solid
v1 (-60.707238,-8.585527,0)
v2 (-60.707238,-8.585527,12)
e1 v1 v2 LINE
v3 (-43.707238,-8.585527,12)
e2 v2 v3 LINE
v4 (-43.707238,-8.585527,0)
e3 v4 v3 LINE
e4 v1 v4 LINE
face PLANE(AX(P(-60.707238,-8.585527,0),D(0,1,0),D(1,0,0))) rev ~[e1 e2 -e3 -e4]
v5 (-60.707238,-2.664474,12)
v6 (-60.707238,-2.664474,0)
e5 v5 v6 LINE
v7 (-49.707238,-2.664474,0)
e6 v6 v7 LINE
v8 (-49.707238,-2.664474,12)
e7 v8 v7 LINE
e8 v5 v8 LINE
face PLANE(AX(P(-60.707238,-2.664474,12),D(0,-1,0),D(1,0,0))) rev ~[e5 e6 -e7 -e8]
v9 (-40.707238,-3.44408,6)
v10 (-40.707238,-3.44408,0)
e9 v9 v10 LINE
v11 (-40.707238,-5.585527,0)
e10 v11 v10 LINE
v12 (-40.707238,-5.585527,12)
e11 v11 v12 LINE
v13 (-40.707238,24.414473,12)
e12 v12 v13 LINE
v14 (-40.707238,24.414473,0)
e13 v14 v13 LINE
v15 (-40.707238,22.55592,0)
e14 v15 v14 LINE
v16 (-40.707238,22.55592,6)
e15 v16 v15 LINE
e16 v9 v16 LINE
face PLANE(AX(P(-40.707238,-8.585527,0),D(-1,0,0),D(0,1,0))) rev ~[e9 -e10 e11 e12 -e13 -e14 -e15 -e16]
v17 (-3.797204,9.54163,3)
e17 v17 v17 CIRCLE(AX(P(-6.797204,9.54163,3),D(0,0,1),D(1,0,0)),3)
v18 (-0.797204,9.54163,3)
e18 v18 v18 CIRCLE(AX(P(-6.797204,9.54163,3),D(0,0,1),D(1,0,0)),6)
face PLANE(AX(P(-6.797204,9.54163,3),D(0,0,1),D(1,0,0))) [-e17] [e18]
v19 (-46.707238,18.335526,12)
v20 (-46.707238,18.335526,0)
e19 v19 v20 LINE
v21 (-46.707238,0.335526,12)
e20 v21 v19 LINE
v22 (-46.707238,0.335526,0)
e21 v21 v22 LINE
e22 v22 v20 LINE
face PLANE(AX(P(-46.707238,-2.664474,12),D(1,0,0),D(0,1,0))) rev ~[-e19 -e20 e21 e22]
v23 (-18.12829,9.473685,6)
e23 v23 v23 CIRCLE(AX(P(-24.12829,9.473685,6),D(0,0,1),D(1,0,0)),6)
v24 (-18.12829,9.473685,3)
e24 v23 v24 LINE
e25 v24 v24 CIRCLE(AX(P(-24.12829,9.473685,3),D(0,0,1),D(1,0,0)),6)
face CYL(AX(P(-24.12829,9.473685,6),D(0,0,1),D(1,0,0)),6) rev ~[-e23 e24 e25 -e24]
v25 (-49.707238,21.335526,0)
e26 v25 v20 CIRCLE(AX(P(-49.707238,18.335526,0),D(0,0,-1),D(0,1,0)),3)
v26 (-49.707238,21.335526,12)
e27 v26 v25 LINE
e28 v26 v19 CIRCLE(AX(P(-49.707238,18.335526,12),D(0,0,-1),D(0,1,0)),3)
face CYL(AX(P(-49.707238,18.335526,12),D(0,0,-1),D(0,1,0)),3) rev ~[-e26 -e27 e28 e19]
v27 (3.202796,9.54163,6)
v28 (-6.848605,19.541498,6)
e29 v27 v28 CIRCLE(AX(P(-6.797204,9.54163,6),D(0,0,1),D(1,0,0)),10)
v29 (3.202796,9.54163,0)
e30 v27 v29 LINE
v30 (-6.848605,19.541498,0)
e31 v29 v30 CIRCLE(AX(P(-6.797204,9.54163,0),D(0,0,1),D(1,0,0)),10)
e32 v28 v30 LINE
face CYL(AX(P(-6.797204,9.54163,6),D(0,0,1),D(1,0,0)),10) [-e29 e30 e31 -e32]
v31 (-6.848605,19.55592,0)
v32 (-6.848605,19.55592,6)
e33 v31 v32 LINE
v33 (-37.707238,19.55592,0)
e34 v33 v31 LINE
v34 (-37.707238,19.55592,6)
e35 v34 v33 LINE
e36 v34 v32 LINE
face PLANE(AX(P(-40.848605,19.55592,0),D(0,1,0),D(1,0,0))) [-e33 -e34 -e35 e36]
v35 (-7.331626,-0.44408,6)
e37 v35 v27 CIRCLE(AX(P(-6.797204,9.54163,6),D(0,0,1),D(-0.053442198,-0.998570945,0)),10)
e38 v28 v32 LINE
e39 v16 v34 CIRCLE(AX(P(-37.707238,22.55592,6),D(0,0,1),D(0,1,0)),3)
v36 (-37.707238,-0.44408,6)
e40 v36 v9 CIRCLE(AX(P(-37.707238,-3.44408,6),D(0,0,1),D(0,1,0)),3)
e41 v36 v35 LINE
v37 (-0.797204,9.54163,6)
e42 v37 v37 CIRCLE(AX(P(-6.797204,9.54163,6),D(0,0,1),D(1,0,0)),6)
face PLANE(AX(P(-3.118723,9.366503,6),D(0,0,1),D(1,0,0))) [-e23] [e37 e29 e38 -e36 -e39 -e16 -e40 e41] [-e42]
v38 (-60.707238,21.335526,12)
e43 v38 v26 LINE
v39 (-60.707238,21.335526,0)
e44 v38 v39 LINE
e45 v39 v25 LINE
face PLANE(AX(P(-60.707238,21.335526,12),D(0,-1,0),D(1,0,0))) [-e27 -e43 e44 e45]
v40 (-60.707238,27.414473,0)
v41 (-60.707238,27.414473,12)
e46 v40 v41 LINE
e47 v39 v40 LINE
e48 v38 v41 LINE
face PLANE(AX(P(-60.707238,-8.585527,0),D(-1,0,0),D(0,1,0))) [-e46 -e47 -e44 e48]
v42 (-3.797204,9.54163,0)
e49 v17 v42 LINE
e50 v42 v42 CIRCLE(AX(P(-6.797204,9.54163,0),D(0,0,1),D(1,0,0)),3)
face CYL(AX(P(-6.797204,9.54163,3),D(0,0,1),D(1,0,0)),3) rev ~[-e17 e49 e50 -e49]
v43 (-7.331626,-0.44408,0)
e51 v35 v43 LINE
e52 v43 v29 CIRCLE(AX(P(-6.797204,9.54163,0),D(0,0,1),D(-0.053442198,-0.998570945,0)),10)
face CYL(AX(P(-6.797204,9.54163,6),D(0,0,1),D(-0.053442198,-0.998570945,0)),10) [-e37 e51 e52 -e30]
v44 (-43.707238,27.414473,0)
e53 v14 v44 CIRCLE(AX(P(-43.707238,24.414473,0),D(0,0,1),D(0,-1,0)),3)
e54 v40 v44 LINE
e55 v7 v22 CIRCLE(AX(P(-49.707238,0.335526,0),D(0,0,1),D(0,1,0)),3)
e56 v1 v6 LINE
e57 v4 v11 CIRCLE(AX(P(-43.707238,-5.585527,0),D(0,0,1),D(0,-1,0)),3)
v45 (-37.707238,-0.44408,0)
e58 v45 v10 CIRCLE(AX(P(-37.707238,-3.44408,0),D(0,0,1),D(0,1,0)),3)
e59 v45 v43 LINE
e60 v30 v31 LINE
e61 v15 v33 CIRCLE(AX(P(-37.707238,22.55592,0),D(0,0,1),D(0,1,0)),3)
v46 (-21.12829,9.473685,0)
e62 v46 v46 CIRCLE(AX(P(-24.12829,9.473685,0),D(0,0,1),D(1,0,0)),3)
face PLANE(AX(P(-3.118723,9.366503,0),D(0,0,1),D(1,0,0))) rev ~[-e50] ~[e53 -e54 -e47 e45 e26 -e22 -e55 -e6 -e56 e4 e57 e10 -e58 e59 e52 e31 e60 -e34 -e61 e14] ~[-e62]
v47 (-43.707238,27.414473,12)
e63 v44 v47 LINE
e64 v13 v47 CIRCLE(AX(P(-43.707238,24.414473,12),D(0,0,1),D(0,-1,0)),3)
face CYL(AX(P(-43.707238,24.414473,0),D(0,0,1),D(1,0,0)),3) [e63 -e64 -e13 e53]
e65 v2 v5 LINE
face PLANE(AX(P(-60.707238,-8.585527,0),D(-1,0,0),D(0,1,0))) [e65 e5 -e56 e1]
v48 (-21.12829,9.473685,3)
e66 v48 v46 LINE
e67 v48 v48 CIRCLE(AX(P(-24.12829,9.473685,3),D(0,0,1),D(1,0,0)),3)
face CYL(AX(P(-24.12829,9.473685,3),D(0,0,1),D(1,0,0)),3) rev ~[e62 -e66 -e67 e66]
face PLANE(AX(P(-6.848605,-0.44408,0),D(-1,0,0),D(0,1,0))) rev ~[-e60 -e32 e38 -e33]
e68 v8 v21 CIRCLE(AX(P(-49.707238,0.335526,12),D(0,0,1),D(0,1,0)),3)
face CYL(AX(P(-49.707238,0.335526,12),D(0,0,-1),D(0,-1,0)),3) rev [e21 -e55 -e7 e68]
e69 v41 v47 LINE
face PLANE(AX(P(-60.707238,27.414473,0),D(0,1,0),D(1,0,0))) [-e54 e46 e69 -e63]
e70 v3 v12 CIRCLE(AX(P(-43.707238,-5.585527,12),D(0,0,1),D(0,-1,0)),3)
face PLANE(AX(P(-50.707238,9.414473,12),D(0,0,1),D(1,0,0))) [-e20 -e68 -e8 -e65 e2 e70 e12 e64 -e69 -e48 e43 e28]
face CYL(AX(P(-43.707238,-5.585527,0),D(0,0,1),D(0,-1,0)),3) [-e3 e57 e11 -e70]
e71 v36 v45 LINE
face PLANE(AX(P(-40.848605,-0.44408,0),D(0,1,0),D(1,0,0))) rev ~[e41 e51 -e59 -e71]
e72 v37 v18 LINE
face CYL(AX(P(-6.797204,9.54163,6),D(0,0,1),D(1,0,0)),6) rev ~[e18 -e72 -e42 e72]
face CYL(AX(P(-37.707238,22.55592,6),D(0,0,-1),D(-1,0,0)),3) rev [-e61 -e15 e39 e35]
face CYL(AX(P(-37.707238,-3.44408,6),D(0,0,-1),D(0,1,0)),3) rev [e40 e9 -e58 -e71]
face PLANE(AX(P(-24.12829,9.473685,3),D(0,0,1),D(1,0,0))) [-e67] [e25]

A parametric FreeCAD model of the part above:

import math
import FreeCAD as App
import Part
import Sketcher
from FreeCAD import Vector
Q = App.Units.Quantity


def edges_at(feature, points):
    """Names of the edges that pass closest to the given points."""
    edges = feature.Shape.Edges
    near = lambda p: min(range(len(edges)), key=lambda i: edges[i].distToShape(Part.Vertex(*p))[0])
    return sorted({f"Edge{near(p) + 1}" for p in points})

doc = App.newDocument("Part")
body = doc.addObject("PartDesign::Body", "Body")

# Sketch on XY plane
sketch1 = body.newObject("Sketcher::SketchObject", "Sketch")
sketch1.AttachmentSupport = (doc.getObject("XY_Plane"), [""])
sketch1.MapMode = "FlatFace"
sketch1.addGeometry([
    Part.LineSegment(Vector(-61, 27, 0), Vector(-61, -9, 0)),
    Part.LineSegment(Vector(-61, -9, 0), Vector(-41, -9, 0)),
    Part.LineSegment(Vector(-41, -9, 0), Vector(-41, 27, 0)),
    Part.LineSegment(Vector(-41, 27, 0), Vector(-61, 27, 0)),
], False)
sketch1.addConstraint([
    Sketcher.Constraint("Coincident", 0, 2, 1, 1),
    Sketcher.Constraint("Coincident", 1, 2, 2, 1),
    Sketcher.Constraint("Coincident", 2, 2, 3, 1),
    Sketcher.Constraint("Coincident", 3, 2, 0, 1),
    Sketcher.Constraint("Vertical", 0),
    Sketcher.Constraint("Horizontal", 1),
    Sketcher.Constraint("Vertical", 2),
    Sketcher.Constraint("Horizontal", 3),
    Sketcher.Constraint("DistanceX", 1, 1, 1, 2, Q("20 mm")),
    Sketcher.Constraint("DistanceY", 0, 2, 0, 1, Q("36 mm")),
    Sketcher.Constraint("DistanceX", 0, 2, -1, 1, Q("60.707238 mm")),
    Sketcher.Constraint("DistanceY", 0, 2, -1, 1, Q("8.585527 mm")),
])
pad1 = body.newObject("PartDesign::Pad", "Pad")
pad1.Profile = sketch1
pad1.Length = 12

# Sketch on XY plane
sketch2 = body.newObject("Sketcher::SketchObject", "Sketch001")
sketch2.AttachmentSupport = (doc.getObject("XY_Plane"), [""])
sketch2.MapMode = "FlatFace"
sketch2.AttachmentOffset = App.Placement(Vector(0, 0, 12), App.Rotation())
sketch2.addGeometry([
    Part.LineSegment(Vector(-61, 21, 0), Vector(-61, -3, 0)),
    Part.LineSegment(Vector(-61, -3, 0), Vector(-47, -3, 0)),
    Part.LineSegment(Vector(-47, -3, 0), Vector(-47, 21, 0)),
    Part.LineSegment(Vector(-47, 21, 0), Vector(-61, 21, 0)),
], False)
sketch2.addConstraint([
    Sketcher.Constraint("Coincident", 0, 2, 1, 1),
    Sketcher.Constraint("Coincident", 1, 2, 2, 1),
    Sketcher.Constraint("Coincident", 2, 2, 3, 1),
    Sketcher.Constraint("Coincident", 3, 2, 0, 1),
    Sketcher.Constraint("Vertical", 0),
    Sketcher.Constraint("Horizontal", 1),
    Sketcher.Constraint("Vertical", 2),
    Sketcher.Constraint("Horizontal", 3),
    Sketcher.Constraint("DistanceX", 1, 1, 1, 2, Q("14 mm")),
    Sketcher.Constraint("DistanceY", 0, 2, 0, 1, Q("24 mm")),
    Sketcher.Constraint("DistanceX", 0, 2, -1, 1, Q("60.707238 mm")),
    Sketcher.Constraint("DistanceY", 0, 2, -1, 1, Q("2.664474 mm")),
])
pocket1 = body.newObject("PartDesign::Pocket", "Pocket")
pocket1.Profile = sketch2
pocket1.Length = 25
doc.recompute()

fillet = body.newObject("PartDesign::Fillet", "Fillet")
fillet.Base = (pocket1, edges_at(pocket1, [(-40.707, -8.586, 6)]))
fillet.Radius = 3
doc.recompute()

fillet2 = body.newObject("PartDesign::Fillet", "Fillet001")
fillet2.Base = (fillet, edges_at(fillet, [(-40.707, 27.414, 6), (-46.707, -2.664, 6), (-46.707, 21.336, 6)]))
fillet2.Radius = 3

# Sketch on XY plane
sketch3 = body.newObject("Sketcher::SketchObject", "Sketch002")
sketch3.AttachmentSupport = (doc.getObject("XY_Plane"), [""])
sketch3.MapMode = "FlatFace"
sketch3.addGeometry([
    Part.LineSegment(Vector(-41, 20, 0), Vector(-41, 0, 0)),
    Part.LineSegment(Vector(-41, 0, 0), Vector(-7, 0, 0)),
    Part.LineSegment(Vector(-7, 0, 0), Vector(-7, 20, 0)),
    Part.LineSegment(Vector(-7, 20, 0), Vector(-41, 20, 0)),
], False)
sketch3.addConstraint([
    Sketcher.Constraint("Coincident", 0, 2, 1, 1),
    Sketcher.Constraint("Coincident", 1, 2, 2, 1),
    Sketcher.Constraint("Coincident", 2, 2, 3, 1),
    Sketcher.Constraint("Coincident", 3, 2, 0, 1),
    Sketcher.Constraint("Vertical", 0),
    Sketcher.Constraint("Horizontal", 1),
    Sketcher.Constraint("Vertical", 2),
    Sketcher.Constraint("Horizontal", 3),
    Sketcher.Constraint("DistanceX", 1, 1, 1, 2, Q("34 mm")),
    Sketcher.Constraint("DistanceY", 0, 2, 0, 1, Q("20 mm")),
    Sketcher.Constraint("DistanceY", 0, 2, -1, 1, Q("0.44408 mm")),
    Sketcher.Constraint("DistanceX", 0, 2, -1, 1, Q("40.848605 mm")),
])
pad2 = body.newObject("PartDesign::Pad", "Pad001")
pad2.Profile = sketch3
pad2.Length = 6
doc.recompute()

fillet3 = body.newObject("PartDesign::Fillet", "Fillet002")
fillet3.Base = (pad2, edges_at(pad2, [(-40.707, 19.556, 3)]))
fillet3.Radius = 3
doc.recompute()

fillet4 = body.newObject("PartDesign::Fillet", "Fillet003")
fillet4.Base = (fillet3, edges_at(fillet3, [(-40.707, -0.444, 3)]))
fillet4.Radius = 3

# Sketch on XY plane
sketch4 = body.newObject("Sketcher::SketchObject", "Sketch003")
sketch4.AttachmentSupport = (doc.getObject("XY_Plane"), [""])
sketch4.MapMode = "FlatFace"
sketch4.AttachmentOffset = App.Placement(Vector(0, 0, 6), App.Rotation())
sketch4.addGeometry([
    Part.ArcOfCircle(Part.Circle(Vector(-6.8, 9.54, 0), Vector(0, 0, 1), 10), math.radians(-93), math.radians(0)),
    Part.ArcOfCircle(Part.Circle(Vector(-6.8, 9.54, 0), Vector(0, 0, 1), 10), math.radians(0), math.radians(90)),
    Part.LineSegment(Vector(-6.85, 19.54, 0), Vector(-6.85, -0.44, 0)),
    Part.LineSegment(Vector(-6.85, -0.44, 0), Vector(-7.33, -0.44, 0)),
], False)
sketch4.addConstraint([
    Sketcher.Constraint("Tangent", 0, 2, 1, 1),
    Sketcher.Constraint("Coincident", 1, 2, 2, 1),
    Sketcher.Constraint("Coincident", 2, 2, 3, 1),
    Sketcher.Constraint("Coincident", 3, 2, 0, 1),
    Sketcher.Constraint("Vertical", 2),
    Sketcher.Constraint("Horizontal", 3),
    Sketcher.Constraint("Equal", 0, 1),
    Sketcher.Constraint("Horizontal", 1, 3, 0, 2),
    Sketcher.Constraint("Radius", 0, Q("10 mm")),
    Sketcher.Constraint("DistanceX", 3, 2, 3, 1, Q("0.48302 mm")),
    Sketcher.Constraint("DistanceX", 1, 2, 0, 3, Q("0.051402 mm")),
    Sketcher.Constraint("DistanceY", -1, 1, 0, 3, Q("9.54163 mm")),
    Sketcher.Constraint("DistanceX", 0, 3, -1, 1, Q("6.797204 mm")),
])
pad3 = body.newObject("PartDesign::Pad", "Pad002")
pad3.Profile = sketch4
pad3.Length = 6
pad3.Reversed = True

# Sketch on XY plane
sketch5 = body.newObject("Sketcher::SketchObject", "Sketch004")
sketch5.AttachmentSupport = (doc.getObject("XY_Plane"), [""])
sketch5.MapMode = "FlatFace"
sketch5.AttachmentOffset = App.Placement(Vector(0, 0, 6), App.Rotation())
sketch5.addGeometry(Part.Circle(Vector(-7, 10, 0), Vector(0, 0, 1), 6), False)
sketch5.addConstraint([
    Sketcher.Constraint("Diameter", 0, Q("12 mm")),
    Sketcher.Constraint("DistanceY", -1, 1, 0, 3, Q("9.54163 mm")),
    Sketcher.Constraint("DistanceX", 0, 3, -1, 1, Q("6.797204 mm")),
])
pocket2 = body.newObject("PartDesign::Pocket", "Pocket001")
pocket2.Profile = sketch5
pocket2.Length = 3

# Sketch on XY plane
sketch6 = body.newObject("Sketcher::SketchObject", "Sketch005")
sketch6.AttachmentSupport = (doc.getObject("XY_Plane"), [""])
sketch6.MapMode = "FlatFace"
sketch6.AttachmentOffset = App.Placement(Vector(0, 0, 6), App.Rotation())
sketch6.addGeometry(Part.Circle(Vector(-24, 9, 0), Vector(0, 0, 1), 6), False)
sketch6.addConstraint([
    Sketcher.Constraint("Diameter", 0, Q("12 mm")),
    Sketcher.Constraint("DistanceX", 0, 3, -1, 1, Q("24.12829 mm")),
    Sketcher.Constraint("DistanceY", -1, 1, 0, 3, Q("9.473685 mm")),
])
pocket3 = body.newObject("PartDesign::Pocket", "Pocket002")
pocket3.Profile = sketch6
pocket3.Length = 3

# Sketch on XY plane
sketch7 = body.newObject("Sketcher::SketchObject", "Sketch006")
sketch7.AttachmentSupport = (doc.getObject("XY_Plane"), [""])
sketch7.MapMode = "FlatFace"
sketch7.AttachmentOffset = App.Placement(Vector(0, 0, 3), App.Rotation())
sketch7.addGeometry(Part.Circle(Vector(-24.1, 9.5, 0), Vector(0, 0, 1), 3), False)
sketch7.addConstraint([
    Sketcher.Constraint("Diameter", 0, Q("6 mm")),
    Sketcher.Constraint("DistanceX", 0, 3, -1, 1, Q("24.12829 mm")),
    Sketcher.Constraint("DistanceY", -1, 1, 0, 3, Q("9.473685 mm")),
])
pocket4 = body.newObject("PartDesign::Pocket", "Pocket003")
pocket4.Profile = sketch7
pocket4.Length = 3

# Sketch on XY plane
sketch8 = body.newObject("Sketcher::SketchObject", "Sketch007")
sketch8.AttachmentSupport = (doc.getObject("XY_Plane"), [""])
sketch8.MapMode = "FlatFace"
sketch8.AttachmentOffset = App.Placement(Vector(0, 0, 3), App.Rotation())
sketch8.addGeometry(Part.Circle(Vector(-6.8, 9.5, 0), Vector(0, 0, 1), 3), False)
sketch8.addConstraint([
    Sketcher.Constraint("Diameter", 0, Q("6 mm")),
    Sketcher.Constraint("DistanceY", -1, 1, 0, 3, Q("9.54163 mm")),
    Sketcher.Constraint("DistanceX", 0, 3, -1, 1, Q("6.797204 mm")),
])
pocket5 = body.newObject("PartDesign::Pocket", "Pocket004")
pocket5.Profile = sketch8
pocket5.Length = 3

doc.recompute()
